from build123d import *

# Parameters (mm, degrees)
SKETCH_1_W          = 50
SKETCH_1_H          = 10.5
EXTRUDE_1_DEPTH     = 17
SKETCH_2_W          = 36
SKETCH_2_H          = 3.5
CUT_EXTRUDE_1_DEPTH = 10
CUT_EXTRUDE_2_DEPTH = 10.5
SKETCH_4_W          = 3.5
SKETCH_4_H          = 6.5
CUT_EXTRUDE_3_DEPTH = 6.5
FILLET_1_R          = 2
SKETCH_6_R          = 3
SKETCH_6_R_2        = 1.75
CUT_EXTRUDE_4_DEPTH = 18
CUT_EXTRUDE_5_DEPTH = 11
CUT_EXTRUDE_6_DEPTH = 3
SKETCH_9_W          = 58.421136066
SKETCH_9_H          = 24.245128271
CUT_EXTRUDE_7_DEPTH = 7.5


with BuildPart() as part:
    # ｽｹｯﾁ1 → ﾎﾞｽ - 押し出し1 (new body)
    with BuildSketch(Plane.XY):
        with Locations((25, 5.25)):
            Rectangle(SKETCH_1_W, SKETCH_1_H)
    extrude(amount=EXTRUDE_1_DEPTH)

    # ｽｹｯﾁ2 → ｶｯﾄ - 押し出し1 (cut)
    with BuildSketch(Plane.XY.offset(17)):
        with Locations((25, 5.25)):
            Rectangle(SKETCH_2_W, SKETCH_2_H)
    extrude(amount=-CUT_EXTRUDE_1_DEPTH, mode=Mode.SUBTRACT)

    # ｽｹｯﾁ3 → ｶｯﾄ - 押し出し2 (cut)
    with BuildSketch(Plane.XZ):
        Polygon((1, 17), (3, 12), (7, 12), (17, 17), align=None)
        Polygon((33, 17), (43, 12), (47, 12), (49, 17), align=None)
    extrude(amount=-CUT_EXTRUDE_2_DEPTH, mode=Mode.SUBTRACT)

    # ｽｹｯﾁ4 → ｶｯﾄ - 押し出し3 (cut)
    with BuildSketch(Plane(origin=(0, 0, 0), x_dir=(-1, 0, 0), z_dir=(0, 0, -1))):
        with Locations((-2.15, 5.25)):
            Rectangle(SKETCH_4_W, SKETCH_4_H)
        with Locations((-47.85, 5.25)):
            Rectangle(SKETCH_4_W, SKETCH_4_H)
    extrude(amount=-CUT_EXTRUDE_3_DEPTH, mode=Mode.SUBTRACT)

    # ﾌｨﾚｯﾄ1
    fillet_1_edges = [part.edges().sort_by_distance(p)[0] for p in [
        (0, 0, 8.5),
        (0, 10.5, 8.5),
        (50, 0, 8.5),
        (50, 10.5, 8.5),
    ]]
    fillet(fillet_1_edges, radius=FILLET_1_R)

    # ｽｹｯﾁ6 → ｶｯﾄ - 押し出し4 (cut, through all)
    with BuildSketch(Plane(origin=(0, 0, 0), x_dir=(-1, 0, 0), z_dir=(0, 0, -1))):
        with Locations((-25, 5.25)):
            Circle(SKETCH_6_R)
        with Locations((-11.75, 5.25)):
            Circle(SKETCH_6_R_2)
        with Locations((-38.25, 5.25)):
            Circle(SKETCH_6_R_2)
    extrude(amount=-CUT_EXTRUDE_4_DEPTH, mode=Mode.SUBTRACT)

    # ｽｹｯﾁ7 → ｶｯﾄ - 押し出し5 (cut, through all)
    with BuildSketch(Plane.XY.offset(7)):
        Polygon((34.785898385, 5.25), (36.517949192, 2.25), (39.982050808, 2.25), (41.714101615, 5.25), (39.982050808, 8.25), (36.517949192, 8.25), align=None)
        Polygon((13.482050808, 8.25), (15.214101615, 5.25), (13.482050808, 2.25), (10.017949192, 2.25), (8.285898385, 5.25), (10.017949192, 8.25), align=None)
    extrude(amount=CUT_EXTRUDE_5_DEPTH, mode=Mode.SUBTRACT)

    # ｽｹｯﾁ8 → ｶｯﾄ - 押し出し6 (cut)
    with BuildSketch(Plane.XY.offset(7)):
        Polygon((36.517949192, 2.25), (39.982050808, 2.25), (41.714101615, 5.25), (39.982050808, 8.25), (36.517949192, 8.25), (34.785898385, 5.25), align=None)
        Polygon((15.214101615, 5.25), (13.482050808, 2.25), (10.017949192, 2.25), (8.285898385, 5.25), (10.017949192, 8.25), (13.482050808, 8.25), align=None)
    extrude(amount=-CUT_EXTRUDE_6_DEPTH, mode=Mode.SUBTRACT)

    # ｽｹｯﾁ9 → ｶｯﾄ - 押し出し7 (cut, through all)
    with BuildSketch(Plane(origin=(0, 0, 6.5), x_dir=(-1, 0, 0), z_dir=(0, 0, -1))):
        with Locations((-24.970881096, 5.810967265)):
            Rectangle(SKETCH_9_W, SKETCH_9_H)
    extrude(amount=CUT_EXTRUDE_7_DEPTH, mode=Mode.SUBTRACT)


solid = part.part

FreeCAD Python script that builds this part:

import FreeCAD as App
import Part
import Sketcher

V = App.Vector
Q = App.Units.Quantity


def edges_at(feature, points):
    """Names of the edges that pass closest to the given points."""
    edges = feature.Shape.Edges
    near = lambda p: min(range(len(edges)), key=lambda i: edges[i].distToShape(Part.Vertex(*p))[0])
    return sorted({f"Edge{near(p) + 1}" for p in points})

doc = App.newDocument("Part")
body = doc.addObject("PartDesign::Body", "Body")

sketch1 = doc.addObject("Sketcher::SketchObject", "Sketch")
body.addObject(sketch1)
sketch1.AttachmentSupport = (doc.XY_Plane, [""])
sketch1.MapMode = "FlatFace"
sketch1.addGeometry([
    Part.LineSegment(V(0, 10.5, 0), V(0, 0, 0)),
    Part.LineSegment(V(0, 0, 0), V(50, 0, 0)),
    Part.LineSegment(V(50, 0, 0), V(50, 10.5, 0)),
    Part.LineSegment(V(50, 10.5, 0), V(0, 10.5, 0)),
], False)
sketch1.addConstraint([
    Sketcher.Constraint("Coincident", 0, 2, 1, 1),
    Sketcher.Constraint("Coincident", 1, 2, 2, 1),
    Sketcher.Constraint("Coincident", 2, 2, 3, 1),
    Sketcher.Constraint("Coincident", 3, 2, 0, 1),
    Sketcher.Constraint("Vertical", 0),
    Sketcher.Constraint("Horizontal", 1),
    Sketcher.Constraint("Vertical", 2),
    Sketcher.Constraint("Horizontal", 3),
    Sketcher.Constraint("Coincident", 0, 2, -1, 1),
    Sketcher.Constraint("DistanceX", 1, 1, 1, 2, 50.0),
    Sketcher.Constraint("DistanceY", 0, 2, 0, 1, 10.5),
])
pad1 = doc.addObject("PartDesign::Pad", "Pad")
body.addObject(pad1)
pad1.Profile = sketch1
pad1.Length = 17

sketch2 = doc.addObject("Sketcher::SketchObject", "Sketch001")
body.addObject(sketch2)
sketch2.AttachmentSupport = (doc.XY_Plane, [""])
sketch2.MapMode = "FlatFace"
sketch2.AttachmentOffset = App.Placement(V(0, 0, 17), App.Rotation())
sketch2.addGeometry([
    Part.LineSegment(V(7, 7, 0), V(7, 3.5, 0)),
    Part.LineSegment(V(7, 3.5, 0), V(43, 3.5, 0)),
    Part.LineSegment(V(43, 3.5, 0), V(43, 7, 0)),
    Part.LineSegment(V(43, 7, 0), V(7, 7, 0)),
], False)
sketch2.addConstraint([
    Sketcher.Constraint("Coincident", 0, 2, 1, 1),
    Sketcher.Constraint("Coincident", 1, 2, 2, 1),
    Sketcher.Constraint("Coincident", 2, 2, 3, 1),
    Sketcher.Constraint("Coincident", 3, 2, 0, 1),
    Sketcher.Constraint("Vertical", 0),
    Sketcher.Constraint("Horizontal", 1),
    Sketcher.Constraint("Vertical", 2),
    Sketcher.Constraint("Horizontal", 3),
    Sketcher.Constraint("DistanceX", 1, 1, 1, 2, 36.0),
    Sketcher.Constraint("DistanceY", 0, 2, 0, 1, 3.5),
    Sketcher.Constraint("DistanceX", -1, 1, 0, 2, 7.0),
    Sketcher.Constraint("DistanceY", -1, 1, 2, 2, 7.0),
])
pocket1 = doc.addObject("PartDesign::Pocket", "Pocket")
body.addObject(pocket1)
pocket1.Profile = sketch2
pocket1.Length = 10

sketch3 = doc.addObject("Sketcher::SketchObject", "Sketch002")
body.addObject(sketch3)
sketch3.AttachmentSupport = (doc.XZ_Plane, [""])
sketch3.MapMode = "FlatFace"
sketch3.addGeometry([
    Part.LineSegment(V(1, 17, 0), V(3, 12, 0)),
    Part.LineSegment(V(3, 12, 0), V(7, 12, 0)),
    Part.LineSegment(V(7, 12, 0), V(17, 17, 0)),
    Part.LineSegment(V(17, 17, 0), V(1, 17, 0)),
    Part.LineSegment(V(33, 17, 0), V(43, 12, 0)),
    Part.LineSegment(V(43, 12, 0), V(47, 12, 0)),
    Part.LineSegment(V(47, 12, 0), V(49, 17, 0)),
    Part.LineSegment(V(49, 17, 0), V(33, 17, 0)),
], False)
sketch3.addConstraint([
    Sketcher.Constraint("Coincident", 0, 2, 1, 1),
    Sketcher.Constraint("Coincident", 1, 2, 2, 1),
    Sketcher.Constraint("Coincident", 2, 2, 3, 1),
    Sketcher.Constraint("Coincident", 3, 2, 0, 1),
    Sketcher.Constraint("Coincident", 4, 2, 5, 1),
    Sketcher.Constraint("Coincident", 5, 2, 6, 1),
    Sketcher.Constraint("Coincident", 6, 2, 7, 1),
    Sketcher.Constraint("Coincident", 7, 2, 4, 1),
    Sketcher.Constraint("Horizontal", 1),
    Sketcher.Constraint("Horizontal", 3),
    Sketcher.Constraint("Horizontal", 5),
    Sketcher.Constraint("Horizontal", 7),
    Sketcher.Constraint("Horizontal", 1, 2, 4, 2),
    Sketcher.Constraint("Horizontal", 3, 2, 6, 2),
    Sketcher.Constraint("Equal", 1, 5),
    Sketcher.Constraint("Equal", 3, 7),
    Sketcher.Constraint("Equal", 2, 4),
    Sketcher.Constraint("DistanceX", 1, 1, 1, 2, 4.0),
    Sketcher.Constraint("DistanceX", 3, 2, 3, 1, 16.0),
    Sketcher.Constraint("DistanceX", -1, 1, 0, 2, 3.0),
    Sketcher.Constraint("DistanceY", -1, 1, 0, 2, 12.0),
    Sketcher.Constraint("DistanceX", -1, 1, 2, 2, 17.0),
    Sketcher.Constraint("DistanceY", -1, 1, 2, 2, 17.0),
    Sketcher.Constraint("DistanceX", -1, 1, 4, 2, 43.0),
])
pocket2 = doc.addObject("PartDesign::Pocket", "Pocket001")
body.addObject(pocket2)
pocket2.Profile = sketch3
pocket2.Length = 10.5

sketch4 = doc.addObject("Sketcher::SketchObject", "Sketch003")
body.addObject(sketch4)
sketch4.AttachmentSupport = (doc.XY_Plane, [""])
sketch4.MapMode = "FlatFace"
sketch4.addGeometry([
    Part.LineSegment(V(3.9, 8.5, 0), V(3.9, 2, 0)),
    Part.LineSegment(V(3.9, 2, 0), V(0.4, 2, 0)),
    Part.LineSegment(V(0.4, 2, 0), V(0.4, 8.5, 0)),
    Part.LineSegment(V(0.4, 8.5, 0), V(3.9, 8.5, 0)),
    Part.LineSegment(V(49.6, 8.5, 0), V(49.6, 2, 0)),
    Part.LineSegment(V(49.6, 2, 0), V(46.1, 2, 0)),
    Part.LineSegment(V(46.1, 2, 0), V(46.1, 8.5, 0)),
    Part.LineSegment(V(46.1, 8.5, 0), V(49.6, 8.5, 0)),
], False)
sketch4.addConstraint([
    Sketcher.Constraint("Coincident", 0, 2, 1, 1),
    Sketcher.Constraint("Coincident", 1, 2, 2, 1),
    Sketcher.Constraint("Coincident", 2, 2, 3, 1),
    Sketcher.Constraint("Coincident", 3, 2, 0, 1),
    Sketcher.Constraint("Coincident", 4, 2, 5, 1),
    Sketcher.Constraint("Coincident", 5, 2, 6, 1),
    Sketcher.Constraint("Coincident", 6, 2, 7, 1),
    Sketcher.Constraint("Coincident", 7, 2, 4, 1),
    Sketcher.Constraint("Vertical", 0),
    Sketcher.Constraint("Horizontal", 1),
    Sketcher.Constraint("Vertical", 2),
    Sketcher.Constraint("Horizontal", 3),
    Sketcher.Constraint("Vertical", 4),
    Sketcher.Constraint("Horizontal", 5),
    Sketcher.Constraint("Vertical", 6),
    Sketcher.Constraint("Horizontal", 7),
    Sketcher.Constraint("Horizontal", 1, 2, 4, 2),
    Sketcher.Constraint("Horizontal", 3, 2, 6, 2),
    Sketcher.Constraint("Equal", 3, 5),
    Sketcher.Constraint("DistanceX", 1, 2, 1, 1, 3.5),
    Sketcher.Constraint("DistanceY", 0, 2, 0, 1, 6.5),
    Sketcher.Constraint("DistanceY", -1, 1, 0, 2, 2.0),
    Sketcher.Constraint("DistanceX", -1, 1, 0, 2, 3.9),
    Sketcher.Constraint("DistanceX", -1, 1, 4, 2, 49.6),
])
pocket3 = doc.addObject("PartDesign::Pocket", "Pocket002")
body.addObject(pocket3)
pocket3.Profile = sketch4
pocket3.Length = 6.5
pocket3.Reversed = True
doc.recompute()

fillet = doc.addObject("PartDesign::Fillet", "Fillet")
body.addObject(fillet)
fillet.Base = (pocket3, edges_at(pocket3, [
    (0, 0, 8.5),
    (0, 10.5, 8.5),
    (50, 0, 8.5),
    (50, 10.5, 8.5),
]))
fillet.Radius = 2

sketch5 = doc.addObject("Sketcher::SketchObject", "Sketch004")
body.addObject(sketch5)
sketch5.AttachmentSupport = (doc.XY_Plane, [""])
sketch5.MapMode = "FlatFace"
sketch5.addGeometry([
    Part.Circle(V(25, 5.25, 0), V(0, 0, 1), 3),
    Part.Circle(V(11.75, 5.25, 0), V(0, 0, 1), 1.75),
    Part.Circle(V(38.25, 5.25, 0), V(0, 0, 1), 1.75),
], False)
sketch5.addConstraint([
    Sketcher.Constraint("Equal", 1, 2),
    Sketcher.Constraint("Horizontal", 0, 3, 1, 3),
    Sketcher.Constraint("Horizontal", 1, 3, 2, 3),
    Sketcher.Constraint("Diameter", 0, 6.0),
    Sketcher.Constraint("Diameter", 1, 3.5),
    Sketcher.Constraint("DistanceX", -1, 1, 0, 3, 25.0),
    Sketcher.Constraint("DistanceX", 1, 3, 2, 3, 26.5),
    Sketcher.Constraint("DistanceY", -1, 1, 0, 3, 5.25),
    Sketcher.Constraint("DistanceX", -1, 1, 1, 3, 11.75),
])
pocket4 = doc.addObject("PartDesign::Pocket", "Pocket003")
body.addObject(pocket4)
pocket4.Profile = sketch5
pocket4.Type = "ThroughAll"
pocket4.Reversed = True

sketch6 = doc.addObject("Sketcher::SketchObject", "Sketch005")
body.addObject(sketch6)
sketch6.AttachmentSupport = (doc.XY_Plane, [""])
sketch6.MapMode = "FlatFace"
sketch6.AttachmentOffset = App.Placement(V(0, 0, 7), App.Rotation())
sketch6.addGeometry([
    Part.LineSegment(V(34.785898, 5.25, 0), V(36.517949, 2.25, 0)),
    Part.LineSegment(V(36.517949, 2.25, 0), V(39.982051, 2.25, 0)),
    Part.LineSegment(V(39.982051, 2.25, 0), V(41.714102, 5.25, 0)),
    Part.LineSegment(V(41.714102, 5.25, 0), V(39.982051, 8.25, 0)),
    Part.LineSegment(V(39.982051, 8.25, 0), V(36.517949, 8.25, 0)),
    Part.LineSegment(V(36.517949, 8.25, 0), V(34.785898, 5.25, 0)),
    Part.LineSegment(V(15.214102, 5.25, 0), V(13.482051, 8.25, 0)),
    Part.LineSegment(V(13.482051, 8.25, 0), V(10.017949, 8.25, 0)),
    Part.LineSegment(V(10.017949, 8.25, 0), V(8.285898, 5.25, 0)),
    Part.LineSegment(V(8.285898, 5.25, 0), V(10.017949, 2.25, 0)),
    Part.LineSegment(V(10.017949, 2.25, 0), V(13.482051, 2.25, 0)),
    Part.LineSegment(V(13.482051, 2.25, 0), V(15.214102, 5.25, 0)),
], False)
sketch6.addConstraint([
    Sketcher.Constraint("Coincident", 0, 2, 1, 1),
    Sketcher.Constraint("Coincident", 1, 2, 2, 1),
    Sketcher.Constraint("Coincident", 2, 2, 3, 1),
    Sketcher.Constraint("Coincident", 3, 2, 4, 1),
    Sketcher.Constraint("Coincident", 4, 2, 5, 1),
    Sketcher.Constraint("Coincident", 5, 2, 0, 1),
    Sketcher.Constraint("Coincident", 6, 2, 7, 1),
    Sketcher.Constraint("Coincident", 7, 2, 8, 1),
    Sketcher.Constraint("Coincident", 8, 2, 9, 1),
    Sketcher.Constraint("Coincident", 9, 2, 10, 1),
    Sketcher.Constraint("Coincident", 10, 2, 11, 1),
    Sketcher.Constraint("Coincident", 11, 2, 6, 1),
    Sketcher.Constraint("Horizontal", 1),
    Sketcher.Constraint("Horizontal", 4),
    Sketcher.Constraint("Horizontal", 7),
    Sketcher.Constraint("Horizontal", 10),
    Sketcher.Constraint("Parallel", 0, 3),
    Sketcher.Constraint("Parallel", 2, 5),
    Sketcher.Constraint("Parallel", 3, 6),
    Sketcher.Constraint("Parallel", 5, 8),
    Sketcher.Constraint("Parallel", 6, 9),
    Sketcher.Constraint("Parallel", 8, 11),
    Sketcher.Constraint("Horizontal", 2, 2, 5, 2),
    Sketcher.Constraint("Horizontal", 4, 2, 6, 2),
    Sketcher.Constraint("Horizontal", 5, 2, 8, 2),
    Sketcher.Constraint("Horizontal", 1, 2, 9, 2),
    Sketcher.Constraint("Horizontal", 8, 2, 11, 2),
    Sketcher.Constraint("Vertical", 1, 2, 3, 2),
    Sketcher.Constraint("Vertical", 0, 2, 4, 2),
    Sketcher.Constraint("Equal", 4, 7),
    Sketcher.Constraint("Angle", 0, Q("-60 deg")),
    Sketcher.Constraint("DistanceY", 1, 2, 2, 2, 3.0),
    Sketcher.Constraint("DistanceX", 6, 2, 3, 2, 26.5),
    Sketcher.Constraint("DistanceY", -1, 1, 0, 2, 2.25),
    Sketcher.Constraint("DistanceX", 1, 1, 1, 2, 3.464102),
    Sketcher.Constraint("DistanceX", -1, 1, 2, 2, 41.714102),
])
pocket5 = doc.addObject("PartDesign::Pocket", "Pocket004")
body.addObject(pocket5)
pocket5.Profile = sketch6
pocket5.Type = "ThroughAll"
pocket5.Reversed = True

sketch7 = doc.addObject("Sketcher::SketchObject", "Sketch006")
body.addObject(sketch7)
sketch7.AttachmentSupport = (doc.XY_Plane, [""])
sketch7.MapMode = "FlatFace"
sketch7.AttachmentOffset = App.Placement(V(0, 0, 7), App.Rotation())
sketch7.addGeometry([
    Part.LineSegment(V(36.517949, 2.25, 0), V(39.982051, 2.25, 0)),
    Part.LineSegment(V(39.982051, 2.25, 0), V(41.714102, 5.25, 0)),
    Part.LineSegment(V(41.714102, 5.25, 0), V(39.982051, 8.25, 0)),
    Part.LineSegment(V(39.982051, 8.25, 0), V(36.517949, 8.25, 0)),
    Part.LineSegment(V(36.517949, 8.25, 0), V(34.785898, 5.25, 0)),
    Part.LineSegment(V(34.785898, 5.25, 0), V(36.517949, 2.25, 0)),
    Part.LineSegment(V(13.482051, 2.25, 0), V(15.214102, 5.25, 0)),
    Part.LineSegment(V(15.214102, 5.25, 0), V(13.482051, 8.25, 0)),
    Part.LineSegment(V(13.482051, 8.25, 0), V(10.017949, 8.25, 0)),
    Part.LineSegment(V(10.017949, 8.25, 0), V(8.285898, 5.25, 0)),
    Part.LineSegment(V(8.285898, 5.25, 0), V(10.017949, 2.25, 0)),
    Part.LineSegment(V(10.017949, 2.25, 0), V(13.482051, 2.25, 0)),
], False)
sketch7.addConstraint([
    Sketcher.Constraint("Coincident", 0, 2, 1, 1),
    Sketcher.Constraint("Coincident", 1, 2, 2, 1),
    Sketcher.Constraint("Coincident", 2, 2, 3, 1),
    Sketcher.Constraint("Coincident", 3, 2, 4, 1),
    Sketcher.Constraint("Coincident", 4, 2, 5, 1),
    Sketcher.Constraint("Coincident", 5, 2, 0, 1),
    Sketcher.Constraint("Coincident", 6, 2, 7, 1),
    Sketcher.Constraint("Coincident", 7, 2, 8, 1),
    Sketcher.Constraint("Coincident", 8, 2, 9, 1),
    Sketcher.Constraint("Coincident", 9, 2, 10, 1),
    Sketcher.Constraint("Coincident", 10, 2, 11, 1),
    Sketcher.Constraint("Coincident", 11, 2, 6, 1),
    Sketcher.Constraint("Horizontal", 0),
    Sketcher.Constraint("Horizontal", 3),
    Sketcher.Constraint("Horizontal", 8),
    Sketcher.Constraint("Horizontal", 11),
    Sketcher.Constraint("Parallel", 1, 4),
    Sketcher.Constraint("Parallel", 2, 5),
    Sketcher.Constraint("Parallel", 4, 6),
    Sketcher.Constraint("Parallel", 5, 7),
    Sketcher.Constraint("Parallel", 6, 9),
    Sketcher.Constraint("Parallel", 7, 10),
    Sketcher.Constraint("Horizontal", 1, 2, 4, 2),
    Sketcher.Constraint("Horizontal", 4, 2, 6, 2),
    Sketcher.Constraint("Horizontal", 3, 2, 7, 2),
    Sketcher.Constraint("Horizontal", 6, 2, 9, 2),
    Sketcher.Constraint("Horizontal", 5, 2, 10, 2),
    Sketcher.Constraint("Vertical", 0, 2, 2, 2),
    Sketcher.Constraint("Vertical", 3, 2, 5, 2),
    Sketcher.Constraint("Equal", 3, 8),
    Sketcher.Constraint("Angle", 1, Q("60 deg")),
    Sketcher.Constraint("DistanceY", 0, 2, 1, 2, 3.0),
    Sketcher.Constraint("DistanceX", 7, 2, 2, 2, 26.5),
    Sketcher.Constraint("DistanceY", -1, 1, 0, 2, 2.25),
    Sketcher.Constraint("DistanceX", 0, 1, 0, 2, 3.464102),
    Sketcher.Constraint("DistanceX", -1, 1, 1, 2, 41.714102),
])
pocket6 = doc.addObject("PartDesign::Pocket", "Pocket005")
body.addObject(pocket6)
pocket6.Profile = sketch7
pocket6.Length = 3

sketch8 = doc.addObject("Sketcher::SketchObject", "Sketch007")
body.addObject(sketch8)
sketch8.AttachmentSupport = (doc.XY_Plane, [""])
sketch8.MapMode = "FlatFace"
sketch8.AttachmentOffset = App.Placement(V(0, 0, 6.5), App.Rotation())
sketch8.addGeometry([
    Part.LineSegment(V(54.181449, 17.933531, 0), V(54.181449, -6.311597, 0)),
    Part.LineSegment(V(54.181449, -6.311597, 0), V(-4.239687, -6.311597, 0)),
    Part.LineSegment(V(-4.239687, -6.311597, 0), V(-4.239687, 17.933531, 0)),
    Part.LineSegment(V(-4.239687, 17.933531, 0), V(54.181449, 17.933531, 0)),
], False)
sketch8.addConstraint([
    Sketcher.Constraint("Coincident", 0, 2, 1, 1),
    Sketcher.Constraint("Coincident", 1, 2, 2, 1),
    Sketcher.Constraint("Coincident", 2, 2, 3, 1),
    Sketcher.Constraint("Coincident", 3, 2, 0, 1),
    Sketcher.Constraint("Vertical", 0),
    Sketcher.Constraint("Horizontal", 1),
    Sketcher.Constraint("Vertical", 2),
    Sketcher.Constraint("Horizontal", 3),
    Sketcher.Constraint("DistanceY", 0, 2, 0, 1, 24.245128),
    Sketcher.Constraint("DistanceX", 1, 2, 1, 1, 58.421136),
    Sketcher.Constraint("DistanceX", -1, 1, 0, 2, 54.181449),
    Sketcher.Constraint("DistanceY", -1, 1, 2, 2, 17.933531),
])
pocket7 = doc.addObject("PartDesign::Pocket", "Pocket006")
body.addObject(pocket7)
pocket7.Profile = sketch8
pocket7.Type = "ThroughAll"

doc.recompute()
